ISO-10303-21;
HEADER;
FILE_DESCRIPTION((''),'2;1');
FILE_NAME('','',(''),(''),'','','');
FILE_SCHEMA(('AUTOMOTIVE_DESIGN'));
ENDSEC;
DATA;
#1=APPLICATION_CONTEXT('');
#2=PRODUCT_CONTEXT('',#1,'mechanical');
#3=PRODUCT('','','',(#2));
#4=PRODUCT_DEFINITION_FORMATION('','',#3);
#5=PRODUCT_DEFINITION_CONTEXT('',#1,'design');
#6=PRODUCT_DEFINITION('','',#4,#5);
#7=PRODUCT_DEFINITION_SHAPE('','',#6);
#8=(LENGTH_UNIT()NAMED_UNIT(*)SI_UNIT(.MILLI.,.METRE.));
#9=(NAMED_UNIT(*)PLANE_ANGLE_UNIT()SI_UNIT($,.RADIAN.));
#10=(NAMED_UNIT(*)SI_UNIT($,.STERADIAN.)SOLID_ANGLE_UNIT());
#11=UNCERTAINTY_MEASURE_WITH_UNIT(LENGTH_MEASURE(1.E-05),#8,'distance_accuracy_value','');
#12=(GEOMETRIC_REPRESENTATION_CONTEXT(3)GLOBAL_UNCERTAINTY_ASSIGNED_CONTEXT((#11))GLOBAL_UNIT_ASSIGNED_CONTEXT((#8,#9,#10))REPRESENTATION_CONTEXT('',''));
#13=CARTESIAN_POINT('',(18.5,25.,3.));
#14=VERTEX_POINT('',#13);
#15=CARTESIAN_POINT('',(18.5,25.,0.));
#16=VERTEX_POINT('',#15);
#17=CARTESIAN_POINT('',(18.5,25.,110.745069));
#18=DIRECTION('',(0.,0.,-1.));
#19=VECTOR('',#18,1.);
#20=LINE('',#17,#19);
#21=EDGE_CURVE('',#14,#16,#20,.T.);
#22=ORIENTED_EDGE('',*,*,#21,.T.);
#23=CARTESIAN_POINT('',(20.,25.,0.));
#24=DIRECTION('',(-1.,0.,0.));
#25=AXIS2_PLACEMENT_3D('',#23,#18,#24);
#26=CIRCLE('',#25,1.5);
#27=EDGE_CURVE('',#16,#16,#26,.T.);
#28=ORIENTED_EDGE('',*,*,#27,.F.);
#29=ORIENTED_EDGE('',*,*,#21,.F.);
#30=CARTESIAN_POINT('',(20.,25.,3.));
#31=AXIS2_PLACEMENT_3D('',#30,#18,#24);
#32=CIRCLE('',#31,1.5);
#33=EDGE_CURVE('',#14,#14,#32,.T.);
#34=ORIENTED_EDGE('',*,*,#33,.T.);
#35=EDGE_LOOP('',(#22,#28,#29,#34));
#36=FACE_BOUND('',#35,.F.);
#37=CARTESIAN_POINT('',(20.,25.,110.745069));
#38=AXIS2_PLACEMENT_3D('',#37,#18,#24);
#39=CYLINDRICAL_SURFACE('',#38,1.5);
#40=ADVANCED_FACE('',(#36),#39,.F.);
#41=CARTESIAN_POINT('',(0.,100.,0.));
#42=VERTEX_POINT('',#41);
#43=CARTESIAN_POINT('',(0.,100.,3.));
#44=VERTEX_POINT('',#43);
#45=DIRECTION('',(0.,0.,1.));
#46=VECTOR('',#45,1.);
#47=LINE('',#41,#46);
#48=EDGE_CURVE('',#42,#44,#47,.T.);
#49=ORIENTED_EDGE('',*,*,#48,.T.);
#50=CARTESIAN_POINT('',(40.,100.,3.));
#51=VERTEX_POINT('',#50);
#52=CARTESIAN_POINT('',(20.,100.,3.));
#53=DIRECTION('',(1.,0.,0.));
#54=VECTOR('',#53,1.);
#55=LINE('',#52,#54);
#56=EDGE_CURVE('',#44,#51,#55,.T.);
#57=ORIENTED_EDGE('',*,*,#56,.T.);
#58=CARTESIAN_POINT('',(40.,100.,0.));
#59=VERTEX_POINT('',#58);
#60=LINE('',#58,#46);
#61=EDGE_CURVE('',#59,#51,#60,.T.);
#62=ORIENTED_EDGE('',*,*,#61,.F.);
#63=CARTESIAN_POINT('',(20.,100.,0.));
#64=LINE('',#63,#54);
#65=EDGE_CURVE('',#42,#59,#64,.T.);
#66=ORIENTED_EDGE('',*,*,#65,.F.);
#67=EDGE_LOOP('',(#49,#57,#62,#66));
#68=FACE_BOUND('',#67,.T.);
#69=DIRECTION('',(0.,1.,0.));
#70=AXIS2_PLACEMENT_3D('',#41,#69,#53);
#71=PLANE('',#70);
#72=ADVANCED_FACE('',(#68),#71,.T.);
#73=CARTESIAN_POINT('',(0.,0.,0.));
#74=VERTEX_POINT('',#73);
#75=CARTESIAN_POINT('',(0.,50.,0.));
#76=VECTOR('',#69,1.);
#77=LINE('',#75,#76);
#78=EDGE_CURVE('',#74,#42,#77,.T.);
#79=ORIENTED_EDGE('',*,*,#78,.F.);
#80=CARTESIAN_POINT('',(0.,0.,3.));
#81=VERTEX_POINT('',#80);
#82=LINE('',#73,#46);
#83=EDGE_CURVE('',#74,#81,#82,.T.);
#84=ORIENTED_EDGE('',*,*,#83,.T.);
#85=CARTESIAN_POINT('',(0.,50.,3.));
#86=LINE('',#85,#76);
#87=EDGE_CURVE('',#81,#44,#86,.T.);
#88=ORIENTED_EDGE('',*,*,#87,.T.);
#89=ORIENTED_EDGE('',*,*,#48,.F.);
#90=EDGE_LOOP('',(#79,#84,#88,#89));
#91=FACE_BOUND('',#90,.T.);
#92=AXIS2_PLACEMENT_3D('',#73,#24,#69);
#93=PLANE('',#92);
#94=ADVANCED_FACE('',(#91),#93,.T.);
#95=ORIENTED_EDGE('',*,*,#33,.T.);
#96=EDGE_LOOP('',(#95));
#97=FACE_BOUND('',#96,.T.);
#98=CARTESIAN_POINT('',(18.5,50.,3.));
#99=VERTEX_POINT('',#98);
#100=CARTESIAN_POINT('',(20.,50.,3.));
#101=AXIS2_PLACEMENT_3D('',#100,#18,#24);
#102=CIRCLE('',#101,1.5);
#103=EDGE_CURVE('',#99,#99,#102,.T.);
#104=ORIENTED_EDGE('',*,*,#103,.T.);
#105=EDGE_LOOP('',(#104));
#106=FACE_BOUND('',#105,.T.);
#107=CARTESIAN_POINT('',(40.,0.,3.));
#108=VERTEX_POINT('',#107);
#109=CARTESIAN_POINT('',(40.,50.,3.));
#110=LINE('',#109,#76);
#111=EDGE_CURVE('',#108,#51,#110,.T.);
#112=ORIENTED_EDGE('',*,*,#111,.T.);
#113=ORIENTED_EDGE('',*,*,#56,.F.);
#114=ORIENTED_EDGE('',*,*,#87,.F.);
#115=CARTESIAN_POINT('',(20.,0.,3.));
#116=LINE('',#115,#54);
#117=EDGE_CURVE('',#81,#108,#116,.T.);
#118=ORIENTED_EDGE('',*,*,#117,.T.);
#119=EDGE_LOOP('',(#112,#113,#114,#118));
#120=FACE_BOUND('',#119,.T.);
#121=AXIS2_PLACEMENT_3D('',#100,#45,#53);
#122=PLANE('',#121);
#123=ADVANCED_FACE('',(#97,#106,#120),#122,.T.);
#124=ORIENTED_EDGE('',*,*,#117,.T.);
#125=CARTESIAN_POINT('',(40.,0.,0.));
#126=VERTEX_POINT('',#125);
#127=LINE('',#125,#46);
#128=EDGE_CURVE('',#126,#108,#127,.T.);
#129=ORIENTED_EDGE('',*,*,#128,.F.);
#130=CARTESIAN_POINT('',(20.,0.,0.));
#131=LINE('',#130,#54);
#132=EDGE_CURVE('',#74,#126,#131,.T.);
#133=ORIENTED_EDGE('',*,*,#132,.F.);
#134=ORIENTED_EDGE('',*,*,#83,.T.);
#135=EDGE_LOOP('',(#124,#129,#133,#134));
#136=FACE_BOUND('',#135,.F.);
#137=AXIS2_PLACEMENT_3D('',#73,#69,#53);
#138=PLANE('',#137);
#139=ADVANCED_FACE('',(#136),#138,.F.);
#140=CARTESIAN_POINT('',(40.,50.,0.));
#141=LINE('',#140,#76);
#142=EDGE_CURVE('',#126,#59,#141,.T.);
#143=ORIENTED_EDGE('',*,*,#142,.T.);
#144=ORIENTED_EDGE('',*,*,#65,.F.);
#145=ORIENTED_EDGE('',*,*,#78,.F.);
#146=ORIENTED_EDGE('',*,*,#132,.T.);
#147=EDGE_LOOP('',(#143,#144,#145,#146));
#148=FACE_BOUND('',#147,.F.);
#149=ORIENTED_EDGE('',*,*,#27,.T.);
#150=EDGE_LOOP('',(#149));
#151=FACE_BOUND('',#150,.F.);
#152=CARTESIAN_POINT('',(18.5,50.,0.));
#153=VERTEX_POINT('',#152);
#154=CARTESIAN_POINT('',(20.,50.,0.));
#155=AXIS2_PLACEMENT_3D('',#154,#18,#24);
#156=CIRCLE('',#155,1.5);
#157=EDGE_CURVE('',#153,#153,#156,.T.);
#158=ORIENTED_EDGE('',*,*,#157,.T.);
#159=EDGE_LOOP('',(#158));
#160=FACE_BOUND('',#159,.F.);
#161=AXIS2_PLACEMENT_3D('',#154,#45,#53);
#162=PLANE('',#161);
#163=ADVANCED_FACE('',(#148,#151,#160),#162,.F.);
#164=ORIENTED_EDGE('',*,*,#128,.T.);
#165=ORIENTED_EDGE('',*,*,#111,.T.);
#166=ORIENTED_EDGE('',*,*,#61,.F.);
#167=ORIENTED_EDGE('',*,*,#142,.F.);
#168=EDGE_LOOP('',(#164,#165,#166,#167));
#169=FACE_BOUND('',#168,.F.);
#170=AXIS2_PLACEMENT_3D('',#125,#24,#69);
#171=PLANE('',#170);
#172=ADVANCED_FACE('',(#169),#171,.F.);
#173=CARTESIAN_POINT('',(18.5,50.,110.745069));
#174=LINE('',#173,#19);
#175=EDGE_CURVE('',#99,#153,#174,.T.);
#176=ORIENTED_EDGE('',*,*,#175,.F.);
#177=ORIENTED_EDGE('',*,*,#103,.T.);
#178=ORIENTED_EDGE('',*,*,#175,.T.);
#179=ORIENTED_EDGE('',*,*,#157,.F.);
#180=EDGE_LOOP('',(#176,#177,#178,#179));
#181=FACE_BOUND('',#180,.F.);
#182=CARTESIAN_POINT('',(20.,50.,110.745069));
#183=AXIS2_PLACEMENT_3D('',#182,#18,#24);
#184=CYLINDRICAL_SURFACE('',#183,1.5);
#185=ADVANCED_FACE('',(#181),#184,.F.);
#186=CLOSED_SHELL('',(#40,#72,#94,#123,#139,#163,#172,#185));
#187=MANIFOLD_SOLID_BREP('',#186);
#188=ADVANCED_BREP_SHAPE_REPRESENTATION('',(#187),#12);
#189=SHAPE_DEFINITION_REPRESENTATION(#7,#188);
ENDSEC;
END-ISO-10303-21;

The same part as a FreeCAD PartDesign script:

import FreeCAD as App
import Part
import Sketcher


def add_polygon(sketch, points):
    """Adds a closed chain of lines whose ends are joined by coincident constraints."""
    first, n = sketch.GeometryCount, len(points)
    for a, b in zip(points, points[1:] + points[:1]):
        sketch.addGeometry(Part.LineSegment(App.Vector(*a, 0), App.Vector(*b, 0)), False)
    for i in range(n):
        sketch.addConstraint(Sketcher.Constraint("Coincident", first + i, 2, first + (i + 1) % n, 1))

doc = App.newDocument("Part")
body = doc.addObject("PartDesign::Body", "Body")

sketch1 = body.newObject("Sketcher::SketchObject", "Sketch")
sketch1.AttachmentSupport = (doc.getObject("XY_Plane"), [""])
sketch1.MapMode = "FlatFace"
add_polygon(sketch1, [(0, 100), (0, 0), (40, 0), (40, 100)])
sketch1.addConstraint(Sketcher.Constraint("Vertical", 0))
sketch1.addConstraint(Sketcher.Constraint("Horizontal", 1))
sketch1.addConstraint(Sketcher.Constraint("Vertical", 2))
sketch1.addConstraint(Sketcher.Constraint("Horizontal", 3))
sketch1.addConstraint(Sketcher.Constraint("Coincident", 0, 2, -1, 1))
sketch1.addConstraint(Sketcher.Constraint("DistanceX", 1, 1, 1, 2, 40.0))
sketch1.addConstraint(Sketcher.Constraint("DistanceY", 0, 2, 0, 1, 100.0))
pad1 = body.newObject("PartDesign::Pad", "Pad")
pad1.Profile = sketch1
pad1.Length = 3

sketch2 = body.newObject("Sketcher::SketchObject", "Sketch001")
sketch2.AttachmentSupport = (doc.getObject("XY_Plane"), [""])
sketch2.MapMode = "FlatFace"
sketch2.AttachmentOffset = App.Placement(App.Vector(0, 0, 3), App.Rotation())
sketch2.addGeometry(Part.Circle(App.Vector(20, 50, 0), App.Vector(0, 0, 1), 1.5), False)
sketch2.addGeometry(Part.Circle(App.Vector(20, 25, 0), App.Vector(0, 0, 1), 1.5), False)
sketch2.addConstraint(Sketcher.Constraint("Equal", 0, 1))
sketch2.addConstraint(Sketcher.Constraint("Vertical", 0, 3, 1, 3))
sketch2.addConstraint(Sketcher.Constraint("Diameter", 0, 3.0))
sketch2.addConstraint(Sketcher.Constraint("DistanceX", -1, 1, 0, 3, 20.0))
sketch2.addConstraint(Sketcher.Constraint("DistanceY", -1, 1, 0, 3, 50.0))
sketch2.addConstraint(Sketcher.Constraint("DistanceY", -1, 1, 1, 3, 25.0))
doc.recompute()
hole = body.newObject("PartDesign::Hole", "Hole")
hole.Profile = sketch2
hole.ThreadType = "None"
hole.Diameter = 3
hole.DepthType = "ThroughAll"

doc.recompute()
